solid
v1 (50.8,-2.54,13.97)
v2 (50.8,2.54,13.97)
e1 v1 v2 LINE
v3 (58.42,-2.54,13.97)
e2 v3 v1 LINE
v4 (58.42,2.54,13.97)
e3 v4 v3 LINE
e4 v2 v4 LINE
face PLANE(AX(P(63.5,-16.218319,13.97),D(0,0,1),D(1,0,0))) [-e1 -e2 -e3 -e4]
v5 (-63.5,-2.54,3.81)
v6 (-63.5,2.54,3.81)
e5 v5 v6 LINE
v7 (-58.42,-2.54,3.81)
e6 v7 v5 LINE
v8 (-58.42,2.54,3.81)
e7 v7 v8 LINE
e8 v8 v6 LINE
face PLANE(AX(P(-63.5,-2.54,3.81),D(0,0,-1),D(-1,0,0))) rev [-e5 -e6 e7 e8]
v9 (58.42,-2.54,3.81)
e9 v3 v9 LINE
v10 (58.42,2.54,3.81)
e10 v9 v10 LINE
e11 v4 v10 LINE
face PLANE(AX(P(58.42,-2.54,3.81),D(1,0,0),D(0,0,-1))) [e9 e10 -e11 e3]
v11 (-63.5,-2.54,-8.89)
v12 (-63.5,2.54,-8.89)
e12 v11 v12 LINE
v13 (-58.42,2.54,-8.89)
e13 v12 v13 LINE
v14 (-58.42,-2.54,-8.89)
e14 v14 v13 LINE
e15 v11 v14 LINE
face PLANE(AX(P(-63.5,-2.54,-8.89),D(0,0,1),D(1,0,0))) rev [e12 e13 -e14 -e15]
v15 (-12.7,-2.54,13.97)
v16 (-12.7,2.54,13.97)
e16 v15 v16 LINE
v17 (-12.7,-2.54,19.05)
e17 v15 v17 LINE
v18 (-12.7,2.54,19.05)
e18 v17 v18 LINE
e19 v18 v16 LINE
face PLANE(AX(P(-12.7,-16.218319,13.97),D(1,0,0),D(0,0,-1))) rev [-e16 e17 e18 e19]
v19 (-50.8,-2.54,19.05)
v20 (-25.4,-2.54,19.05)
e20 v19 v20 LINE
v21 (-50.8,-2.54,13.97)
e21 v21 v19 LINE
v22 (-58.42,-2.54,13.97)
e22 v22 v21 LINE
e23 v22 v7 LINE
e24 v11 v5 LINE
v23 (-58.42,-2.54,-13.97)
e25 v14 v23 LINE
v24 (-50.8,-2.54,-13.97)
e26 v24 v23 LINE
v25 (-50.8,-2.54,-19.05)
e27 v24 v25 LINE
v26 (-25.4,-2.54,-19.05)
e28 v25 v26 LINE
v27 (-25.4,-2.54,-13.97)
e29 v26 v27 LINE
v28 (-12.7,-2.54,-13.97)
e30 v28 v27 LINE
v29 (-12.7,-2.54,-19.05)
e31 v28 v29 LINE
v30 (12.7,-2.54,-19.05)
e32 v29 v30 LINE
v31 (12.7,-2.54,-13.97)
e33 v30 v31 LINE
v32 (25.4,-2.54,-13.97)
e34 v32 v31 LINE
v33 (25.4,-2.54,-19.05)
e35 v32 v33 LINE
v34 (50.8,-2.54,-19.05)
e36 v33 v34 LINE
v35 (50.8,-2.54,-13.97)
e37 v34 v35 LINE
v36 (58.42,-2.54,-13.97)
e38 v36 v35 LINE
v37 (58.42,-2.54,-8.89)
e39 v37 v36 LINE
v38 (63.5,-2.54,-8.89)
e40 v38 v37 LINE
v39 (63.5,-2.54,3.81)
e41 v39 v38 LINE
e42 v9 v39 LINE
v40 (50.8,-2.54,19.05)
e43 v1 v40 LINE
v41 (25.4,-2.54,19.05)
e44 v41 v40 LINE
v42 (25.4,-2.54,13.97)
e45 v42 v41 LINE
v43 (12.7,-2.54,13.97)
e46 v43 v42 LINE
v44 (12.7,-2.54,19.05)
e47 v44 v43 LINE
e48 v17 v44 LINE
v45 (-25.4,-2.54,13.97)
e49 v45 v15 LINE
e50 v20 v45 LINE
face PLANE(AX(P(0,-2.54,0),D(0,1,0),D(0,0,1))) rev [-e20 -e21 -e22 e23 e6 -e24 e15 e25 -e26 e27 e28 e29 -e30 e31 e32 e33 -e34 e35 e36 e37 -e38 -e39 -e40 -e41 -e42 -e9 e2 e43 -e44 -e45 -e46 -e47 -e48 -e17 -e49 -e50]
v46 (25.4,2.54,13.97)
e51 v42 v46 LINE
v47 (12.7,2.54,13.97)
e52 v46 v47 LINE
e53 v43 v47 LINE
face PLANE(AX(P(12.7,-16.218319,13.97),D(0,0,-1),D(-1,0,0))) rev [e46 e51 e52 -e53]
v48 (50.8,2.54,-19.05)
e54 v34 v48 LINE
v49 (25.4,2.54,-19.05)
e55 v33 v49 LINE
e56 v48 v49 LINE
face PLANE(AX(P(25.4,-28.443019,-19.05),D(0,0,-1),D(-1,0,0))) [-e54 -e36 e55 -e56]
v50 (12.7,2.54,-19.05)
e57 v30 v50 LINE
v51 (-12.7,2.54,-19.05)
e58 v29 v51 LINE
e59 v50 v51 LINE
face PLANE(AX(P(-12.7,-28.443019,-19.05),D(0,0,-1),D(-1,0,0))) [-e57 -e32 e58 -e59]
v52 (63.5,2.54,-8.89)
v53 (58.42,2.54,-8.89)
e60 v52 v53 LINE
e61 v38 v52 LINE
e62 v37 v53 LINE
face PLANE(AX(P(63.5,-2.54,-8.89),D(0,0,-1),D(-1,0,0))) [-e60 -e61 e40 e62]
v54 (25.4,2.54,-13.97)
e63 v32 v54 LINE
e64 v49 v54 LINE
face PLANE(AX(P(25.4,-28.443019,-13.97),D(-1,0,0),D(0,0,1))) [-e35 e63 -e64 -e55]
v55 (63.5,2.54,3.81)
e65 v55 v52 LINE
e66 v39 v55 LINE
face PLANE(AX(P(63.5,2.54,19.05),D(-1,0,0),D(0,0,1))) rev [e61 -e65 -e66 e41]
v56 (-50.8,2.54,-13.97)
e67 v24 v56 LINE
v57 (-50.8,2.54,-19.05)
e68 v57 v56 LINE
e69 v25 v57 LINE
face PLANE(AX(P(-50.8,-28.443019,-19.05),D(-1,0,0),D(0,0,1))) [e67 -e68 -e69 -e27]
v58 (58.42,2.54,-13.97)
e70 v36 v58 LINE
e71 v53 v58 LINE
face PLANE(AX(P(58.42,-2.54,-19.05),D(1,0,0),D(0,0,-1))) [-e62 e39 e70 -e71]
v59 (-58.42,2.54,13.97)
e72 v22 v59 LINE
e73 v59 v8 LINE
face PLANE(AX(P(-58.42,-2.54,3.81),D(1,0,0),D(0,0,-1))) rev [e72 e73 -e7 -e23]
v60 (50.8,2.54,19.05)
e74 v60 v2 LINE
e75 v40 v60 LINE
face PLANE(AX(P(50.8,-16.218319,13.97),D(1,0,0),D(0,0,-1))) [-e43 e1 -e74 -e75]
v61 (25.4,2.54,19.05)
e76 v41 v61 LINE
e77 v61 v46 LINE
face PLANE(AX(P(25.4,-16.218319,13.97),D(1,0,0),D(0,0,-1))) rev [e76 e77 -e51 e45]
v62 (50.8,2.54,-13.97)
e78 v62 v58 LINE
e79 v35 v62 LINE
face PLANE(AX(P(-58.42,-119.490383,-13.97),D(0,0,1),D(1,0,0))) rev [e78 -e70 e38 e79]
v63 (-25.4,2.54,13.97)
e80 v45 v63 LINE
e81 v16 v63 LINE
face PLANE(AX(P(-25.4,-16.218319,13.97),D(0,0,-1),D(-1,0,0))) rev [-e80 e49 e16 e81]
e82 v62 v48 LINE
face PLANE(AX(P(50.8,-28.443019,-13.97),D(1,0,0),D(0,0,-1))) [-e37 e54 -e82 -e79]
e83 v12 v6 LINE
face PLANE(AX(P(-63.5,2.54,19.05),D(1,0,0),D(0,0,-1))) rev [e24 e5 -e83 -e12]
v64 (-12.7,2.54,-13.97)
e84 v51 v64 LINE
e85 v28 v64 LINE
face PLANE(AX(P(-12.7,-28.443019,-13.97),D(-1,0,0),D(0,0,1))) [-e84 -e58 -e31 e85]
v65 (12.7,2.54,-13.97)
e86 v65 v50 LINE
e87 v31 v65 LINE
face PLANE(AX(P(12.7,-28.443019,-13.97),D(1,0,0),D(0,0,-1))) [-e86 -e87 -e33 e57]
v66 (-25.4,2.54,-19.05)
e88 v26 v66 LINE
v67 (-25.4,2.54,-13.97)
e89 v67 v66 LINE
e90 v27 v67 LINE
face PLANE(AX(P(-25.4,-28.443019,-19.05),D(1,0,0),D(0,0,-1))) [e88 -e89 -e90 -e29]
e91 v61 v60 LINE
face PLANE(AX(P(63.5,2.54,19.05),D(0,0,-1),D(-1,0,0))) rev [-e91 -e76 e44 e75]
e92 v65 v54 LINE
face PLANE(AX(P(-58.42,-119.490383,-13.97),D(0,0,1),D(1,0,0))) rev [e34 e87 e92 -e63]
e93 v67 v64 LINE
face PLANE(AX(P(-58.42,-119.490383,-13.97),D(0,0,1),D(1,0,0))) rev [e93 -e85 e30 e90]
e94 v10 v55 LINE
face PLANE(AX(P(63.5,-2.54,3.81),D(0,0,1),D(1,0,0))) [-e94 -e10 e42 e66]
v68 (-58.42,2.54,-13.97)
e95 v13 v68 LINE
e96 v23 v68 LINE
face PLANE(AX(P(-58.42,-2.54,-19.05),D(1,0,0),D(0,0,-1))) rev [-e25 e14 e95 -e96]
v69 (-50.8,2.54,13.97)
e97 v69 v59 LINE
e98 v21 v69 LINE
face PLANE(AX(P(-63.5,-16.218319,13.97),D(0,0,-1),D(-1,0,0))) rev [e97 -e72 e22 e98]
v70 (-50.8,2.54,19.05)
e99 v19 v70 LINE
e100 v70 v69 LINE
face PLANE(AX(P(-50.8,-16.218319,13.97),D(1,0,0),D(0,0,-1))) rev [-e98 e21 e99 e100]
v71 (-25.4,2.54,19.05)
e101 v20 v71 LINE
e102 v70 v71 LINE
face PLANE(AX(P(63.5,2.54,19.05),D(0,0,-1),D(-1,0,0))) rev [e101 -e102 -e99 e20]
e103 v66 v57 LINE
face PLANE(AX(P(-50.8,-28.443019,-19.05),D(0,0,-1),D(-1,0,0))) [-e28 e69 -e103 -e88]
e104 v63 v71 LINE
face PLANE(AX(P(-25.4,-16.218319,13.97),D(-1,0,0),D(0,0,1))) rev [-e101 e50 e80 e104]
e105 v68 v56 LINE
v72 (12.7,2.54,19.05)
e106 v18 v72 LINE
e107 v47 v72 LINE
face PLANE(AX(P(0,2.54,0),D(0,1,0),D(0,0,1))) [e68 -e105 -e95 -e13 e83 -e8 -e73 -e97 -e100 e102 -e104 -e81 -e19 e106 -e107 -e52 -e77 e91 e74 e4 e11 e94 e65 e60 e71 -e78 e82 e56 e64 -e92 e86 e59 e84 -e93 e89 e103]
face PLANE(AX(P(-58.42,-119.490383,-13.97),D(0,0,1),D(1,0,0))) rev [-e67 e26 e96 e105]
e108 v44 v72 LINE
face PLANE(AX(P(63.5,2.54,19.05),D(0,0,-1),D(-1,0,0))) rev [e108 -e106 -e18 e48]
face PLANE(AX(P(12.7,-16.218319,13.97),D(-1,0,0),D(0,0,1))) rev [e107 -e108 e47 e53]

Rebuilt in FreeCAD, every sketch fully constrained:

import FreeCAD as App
import Part
import Sketcher
from FreeCAD import Vector
Q = App.Units.Quantity


def add_polygon(sketch, points):
    """Adds a closed chain of lines whose ends are joined by coincident constraints."""
    first, n = sketch.GeometryCount, len(points)
    for a, b in zip(points, points[1:] + points[:1]):
        sketch.addGeometry(Part.LineSegment(App.Vector(*a, 0), App.Vector(*b, 0)), False)
    for i in range(n):
        sketch.addConstraint(Sketcher.Constraint("Coincident", first + i, 2, first + (i + 1) % n, 1))

doc = App.newDocument("Part")
body = doc.addObject("PartDesign::Body", "Body")

# Sketch on XZ plane
sketch1 = doc.addObject("Sketcher::SketchObject", "Sketch")
body.addObject(sketch1)
sketch1.AttachmentSupport = (doc.XZ_Plane, [""])
sketch1.MapMode = "FlatFace"
add_polygon(sketch1, [(-63.5, -19.05), (-63.5, 19.05), (63.5, 19.05), (63.5, -19.05)])  # lines 0-3
sketch1.addConstraint(Sketcher.Constraint("Vertical", 0))
sketch1.addConstraint(Sketcher.Constraint("Horizontal", 1))
sketch1.addConstraint(Sketcher.Constraint("Vertical", 2))
sketch1.addConstraint(Sketcher.Constraint("Horizontal", 3))
sketch1.addConstraint(Sketcher.Constraint("Symmetric", 0, 2, 2, 2, -1, 1))
sketch1.addConstraint(Sketcher.Constraint("DistanceX", 1, 1, 1, 2, Q("5 in")))
sketch1.addConstraint(Sketcher.Constraint("DistanceY", 0, 1, 0, 2, Q("1.5 in")))
pad1 = doc.addObject("PartDesign::Pad", "Pad")
body.addObject(pad1)
pad1.Profile = sketch1
pad1.Length = Q("0.2 in")
pad1.Midplane = True

# Sketch on XZ plane
sketch2 = doc.addObject("Sketcher::SketchObject", "Sketch001")
body.addObject(sketch2)
sketch2.AttachmentSupport = (doc.XZ_Plane, [""])
sketch2.MapMode = "FlatFace"
sketch2.AttachmentOffset = App.Placement(Vector(0, 0, -0.1 * 25.4), App.Rotation())
add_polygon(sketch2, [(-63.5, -19.05), (-63.5, -8.89), (-58.42, -8.89), (-58.42, -19.05)])  # lines 0-3
add_polygon(sketch2, [(-63.5, 3.81), (-63.5, 19.05), (-58.42, 19.05), (-58.42, 3.81)])  # lines 4-7
sketch2.addConstraint(Sketcher.Constraint("Vertical", 0))
sketch2.addConstraint(Sketcher.Constraint("Horizontal", 1))
sketch2.addConstraint(Sketcher.Constraint("Vertical", 2))
sketch2.addConstraint(Sketcher.Constraint("Horizontal", 3))
sketch2.addConstraint(Sketcher.Constraint("Vertical", 4))
sketch2.addConstraint(Sketcher.Constraint("Horizontal", 5))
sketch2.addConstraint(Sketcher.Constraint("Vertical", 6))
sketch2.addConstraint(Sketcher.Constraint("Horizontal", 7))
sketch2.addConstraint(Sketcher.Constraint("Symmetric", 3, 2, 4, 2, -1))
sketch2.addConstraint(Sketcher.Constraint("Vertical", 2, 2, 5, 2))
sketch2.addConstraint(Sketcher.Constraint("DistanceX", 1, 1, 1, 2, Q("0.2 in")))
sketch2.addConstraint(Sketcher.Constraint("DistanceY", 0, 1, 0, 2, Q("0.4 in")))
sketch2.addConstraint(Sketcher.Constraint("DistanceY", 4, 1, 4, 2, Q("0.6 in")))
sketch2.addConstraint(Sketcher.Constraint("DistanceX", 0, 2, -1, 1, Q("2.5 in")))
sketch2.addConstraint(Sketcher.Constraint("DistanceY", 0, 2, 4, 2, Q("1.1 in")))
pocket1 = doc.addObject("PartDesign::Pocket", "Pocket")
body.addObject(pocket1)
pocket1.Profile = sketch2
pocket1.Length = Q("0.2 in")
pocket1.Reversed = True
doc.recompute()

mirrored = doc.addObject("PartDesign::Mirrored", "Mirrored")
body.addObject(mirrored)
mirrored.Originals = [pocket1]
mirrored.MirrorPlane = (doc.YZ_Plane, [""])
body.Tip = mirrored

# Sketch on XZ plane
sketch3 = doc.addObject("Sketcher::SketchObject", "Sketch002")
body.addObject(sketch3)
sketch3.AttachmentSupport = (doc.XZ_Plane, [""])
sketch3.MapMode = "FlatFace"
sketch3.AttachmentOffset = App.Placement(Vector(0, 0, -0.1 * 25.4), App.Rotation())
add_polygon(sketch3, [(-63.5, 13.97), (-63.5, 19.05), (-50.8, 19.05), (-50.8, 13.97)])  # lines 0-3
sketch3.addConstraint(Sketcher.Constraint("Vertical", 0))
sketch3.addConstraint(Sketcher.Constraint("Horizontal", 1))
sketch3.addConstraint(Sketcher.Constraint("Vertical", 2))
sketch3.addConstraint(Sketcher.Constraint("Horizontal", 3))
sketch3.addConstraint(Sketcher.Constraint("DistanceX", 1, 1, 1, 2, Q("0.5 in")))
sketch3.addConstraint(Sketcher.Constraint("DistanceY", 0, 1, 0, 2, Q("0.2 in")))
sketch3.addConstraint(Sketcher.Constraint("DistanceX", 1, 2, -1, 1, Q("2 in")))
sketch3.addConstraint(Sketcher.Constraint("DistanceY", -1, 1, 0, 2, Q("0.75 in")))
pocket2 = doc.addObject("PartDesign::Pocket", "Pocket001")
body.addObject(pocket2)
pocket2.Profile = sketch3
pocket2.Length = Q("0.2 in")
pocket2.Reversed = True
doc.recompute()

mirrored2 = doc.addObject("PartDesign::Mirrored", "Mirrored001")
body.addObject(mirrored2)
mirrored2.Originals = [pocket2]
mirrored2.MirrorPlane = (doc.YZ_Plane, [""])
body.Tip = mirrored2

# Sketch on XZ plane
sketch4 = doc.addObject("Sketcher::SketchObject", "Sketch003")
body.addObject(sketch4)
sketch4.AttachmentSupport = (doc.XZ_Plane, [""])
sketch4.MapMode = "FlatFace"
sketch4.AttachmentOffset = App.Placement(Vector(0, 0, -0.1 * 25.4), App.Rotation())
add_polygon(sketch4, [(-25.4, 13.97), (-25.4, 19.05), (-12.7, 19.05), (-12.7, 13.97)])  # lines 0-3
sketch4.addConstraint(Sketcher.Constraint("Vertical", 0))
sketch4.addConstraint(Sketcher.Constraint("Horizontal", 1))
sketch4.addConstraint(Sketcher.Constraint("Vertical", 2))
sketch4.addConstraint(Sketcher.Constraint("Horizontal", 3))
sketch4.addConstraint(Sketcher.Constraint("DistanceX", 1, 1, 1, 2, Q("0.5 in")))
sketch4.addConstraint(Sketcher.Constraint("DistanceY", 0, 1, 0, 2, Q("0.2 in")))
sketch4.addConstraint(Sketcher.Constraint("DistanceX", 0, 2, -1, 1, Q("1 in")))
sketch4.addConstraint(Sketcher.Constraint("DistanceY", -1, 1, 0, 2, Q("0.75 in")))
pocket3 = doc.addObject("PartDesign::Pocket", "Pocket002")
body.addObject(pocket3)
pocket3.Profile = sketch4
pocket3.Length = Q("0.2 in")
pocket3.Reversed = True
doc.recompute()

linearpattern = doc.addObject("PartDesign::LinearPattern", "LinearPattern")
body.addObject(linearpattern)
linearpattern.Originals = [pocket3]
linearpattern.Direction = (doc.X_Axis, [""])
linearpattern.Mode = "offset"
linearpattern.Offset = Q("1.5 in")
linearpattern.Occurrences = 2
body.Tip = linearpattern

# Sketch on XZ plane
sketch5 = doc.addObject("Sketcher::SketchObject", "Sketch004")
body.addObject(sketch5)
sketch5.AttachmentSupport = (doc.XZ_Plane, [""])
sketch5.MapMode = "FlatFace"
sketch5.AttachmentOffset = App.Placement(Vector(0, 0, -0.1 * 25.4), App.Rotation())
add_polygon(sketch5, [(-58.42, -19.05), (-58.42, -13.97), (58.42, -13.97), (58.42, -19.05)])  # lines 0-3
sketch5.addConstraint(Sketcher.Constraint("Vertical", 0))
sketch5.addConstraint(Sketcher.Constraint("Horizontal", 1))
sketch5.addConstraint(Sketcher.Constraint("Vertical", 2))
sketch5.addConstraint(Sketcher.Constraint("Horizontal", 3))
sketch5.addConstraint(Sketcher.Constraint("DistanceX", 1, 1, 1, 2, Q("4.6 in")))
sketch5.addConstraint(Sketcher.Constraint("DistanceY", 0, 1, 0, 2, Q("0.2 in")))
sketch5.addConstraint(Sketcher.Constraint("DistanceX", 0, 2, -1, 1, Q("2.3 in")))
sketch5.addConstraint(Sketcher.Constraint("DistanceY", 0, 2, -1, 1, Q("0.55 in")))
pocket4 = doc.addObject("PartDesign::Pocket", "Pocket003")
body.addObject(pocket4)
pocket4.Profile = sketch5
pocket4.Length = Q("0.2 in")
pocket4.Reversed = True

# Sketch on XZ plane
sketch6 = doc.addObject("Sketcher::SketchObject", "Sketch005")
body.addObject(sketch6)
sketch6.AttachmentSupport = (doc.XZ_Plane, [""])
sketch6.MapMode = "FlatFace"
sketch6.AttachmentOffset = App.Placement(Vector(0, 0, -0.1 * 25.4), App.Rotation())
add_polygon(sketch6, [(-50.8, -19.05), (-50.8, -13.97), (-25.4, -13.97), (-25.4, -19.05)])  # lines 0-3
add_polygon(sketch6, [(-12.7, -19.05), (-12.7, -13.97), (12.7, -13.97), (12.7, -19.05)])  # lines 4-7
add_polygon(sketch6, [(25.4, -19.05), (25.4, -13.97), (50.8, -13.97), (50.8, -19.05)])  # lines 8-11
sketch6.addConstraint(Sketcher.Constraint("Vertical", 0))
sketch6.addConstraint(Sketcher.Constraint("Horizontal", 1))
sketch6.addConstraint(Sketcher.Constraint("Vertical", 2))
sketch6.addConstraint(Sketcher.Constraint("Horizontal", 3))
sketch6.addConstraint(Sketcher.Constraint("Vertical", 4))
sketch6.addConstraint(Sketcher.Constraint("Horizontal", 5))
sketch6.addConstraint(Sketcher.Constraint("Vertical", 6))
sketch6.addConstraint(Sketcher.Constraint("Horizontal", 7))
sketch6.addConstraint(Sketcher.Constraint("Vertical", 8))
sketch6.addConstraint(Sketcher.Constraint("Horizontal", 9))
sketch6.addConstraint(Sketcher.Constraint("Vertical", 10))
sketch6.addConstraint(Sketcher.Constraint("Horizontal", 11))
sketch6.addConstraint(Sketcher.Constraint("Symmetric", 1, 2, 8, 2, -2))
sketch6.addConstraint(Sketcher.Constraint("Symmetric", 3, 2, 10, 2, -2))
sketch6.addConstraint(Sketcher.Constraint("Horizontal", 1, 2, 4, 2))
sketch6.addConstraint(Sketcher.Constraint("Horizontal", 3, 2, 6, 2))
sketch6.addConstraint(Sketcher.Constraint("Equal", 3, 5))
sketch6.addConstraint(Sketcher.Constraint("DistanceX", 1, 1, 1, 2, Q("1 in")))
sketch6.addConstraint(Sketcher.Constraint("DistanceY", 0, 1, 0, 2, Q("0.2 in")))
sketch6.addConstraint(Sketcher.Constraint("DistanceX", 0, 2, -1, 1, Q("2 in")))
sketch6.addConstraint(Sketcher.Constraint("DistanceX", 4, 2, -1, 1, Q("0.5 in")))
sketch6.addConstraint(Sketcher.Constraint("DistanceY", 0, 2, -1, 1, Q("0.55 in")))
pad2 = doc.addObject("PartDesign::Pad", "Pad001")
body.addObject(pad2)
pad2.Profile = sketch6
pad2.Length = Q("0.2 in")

doc.recompute()
